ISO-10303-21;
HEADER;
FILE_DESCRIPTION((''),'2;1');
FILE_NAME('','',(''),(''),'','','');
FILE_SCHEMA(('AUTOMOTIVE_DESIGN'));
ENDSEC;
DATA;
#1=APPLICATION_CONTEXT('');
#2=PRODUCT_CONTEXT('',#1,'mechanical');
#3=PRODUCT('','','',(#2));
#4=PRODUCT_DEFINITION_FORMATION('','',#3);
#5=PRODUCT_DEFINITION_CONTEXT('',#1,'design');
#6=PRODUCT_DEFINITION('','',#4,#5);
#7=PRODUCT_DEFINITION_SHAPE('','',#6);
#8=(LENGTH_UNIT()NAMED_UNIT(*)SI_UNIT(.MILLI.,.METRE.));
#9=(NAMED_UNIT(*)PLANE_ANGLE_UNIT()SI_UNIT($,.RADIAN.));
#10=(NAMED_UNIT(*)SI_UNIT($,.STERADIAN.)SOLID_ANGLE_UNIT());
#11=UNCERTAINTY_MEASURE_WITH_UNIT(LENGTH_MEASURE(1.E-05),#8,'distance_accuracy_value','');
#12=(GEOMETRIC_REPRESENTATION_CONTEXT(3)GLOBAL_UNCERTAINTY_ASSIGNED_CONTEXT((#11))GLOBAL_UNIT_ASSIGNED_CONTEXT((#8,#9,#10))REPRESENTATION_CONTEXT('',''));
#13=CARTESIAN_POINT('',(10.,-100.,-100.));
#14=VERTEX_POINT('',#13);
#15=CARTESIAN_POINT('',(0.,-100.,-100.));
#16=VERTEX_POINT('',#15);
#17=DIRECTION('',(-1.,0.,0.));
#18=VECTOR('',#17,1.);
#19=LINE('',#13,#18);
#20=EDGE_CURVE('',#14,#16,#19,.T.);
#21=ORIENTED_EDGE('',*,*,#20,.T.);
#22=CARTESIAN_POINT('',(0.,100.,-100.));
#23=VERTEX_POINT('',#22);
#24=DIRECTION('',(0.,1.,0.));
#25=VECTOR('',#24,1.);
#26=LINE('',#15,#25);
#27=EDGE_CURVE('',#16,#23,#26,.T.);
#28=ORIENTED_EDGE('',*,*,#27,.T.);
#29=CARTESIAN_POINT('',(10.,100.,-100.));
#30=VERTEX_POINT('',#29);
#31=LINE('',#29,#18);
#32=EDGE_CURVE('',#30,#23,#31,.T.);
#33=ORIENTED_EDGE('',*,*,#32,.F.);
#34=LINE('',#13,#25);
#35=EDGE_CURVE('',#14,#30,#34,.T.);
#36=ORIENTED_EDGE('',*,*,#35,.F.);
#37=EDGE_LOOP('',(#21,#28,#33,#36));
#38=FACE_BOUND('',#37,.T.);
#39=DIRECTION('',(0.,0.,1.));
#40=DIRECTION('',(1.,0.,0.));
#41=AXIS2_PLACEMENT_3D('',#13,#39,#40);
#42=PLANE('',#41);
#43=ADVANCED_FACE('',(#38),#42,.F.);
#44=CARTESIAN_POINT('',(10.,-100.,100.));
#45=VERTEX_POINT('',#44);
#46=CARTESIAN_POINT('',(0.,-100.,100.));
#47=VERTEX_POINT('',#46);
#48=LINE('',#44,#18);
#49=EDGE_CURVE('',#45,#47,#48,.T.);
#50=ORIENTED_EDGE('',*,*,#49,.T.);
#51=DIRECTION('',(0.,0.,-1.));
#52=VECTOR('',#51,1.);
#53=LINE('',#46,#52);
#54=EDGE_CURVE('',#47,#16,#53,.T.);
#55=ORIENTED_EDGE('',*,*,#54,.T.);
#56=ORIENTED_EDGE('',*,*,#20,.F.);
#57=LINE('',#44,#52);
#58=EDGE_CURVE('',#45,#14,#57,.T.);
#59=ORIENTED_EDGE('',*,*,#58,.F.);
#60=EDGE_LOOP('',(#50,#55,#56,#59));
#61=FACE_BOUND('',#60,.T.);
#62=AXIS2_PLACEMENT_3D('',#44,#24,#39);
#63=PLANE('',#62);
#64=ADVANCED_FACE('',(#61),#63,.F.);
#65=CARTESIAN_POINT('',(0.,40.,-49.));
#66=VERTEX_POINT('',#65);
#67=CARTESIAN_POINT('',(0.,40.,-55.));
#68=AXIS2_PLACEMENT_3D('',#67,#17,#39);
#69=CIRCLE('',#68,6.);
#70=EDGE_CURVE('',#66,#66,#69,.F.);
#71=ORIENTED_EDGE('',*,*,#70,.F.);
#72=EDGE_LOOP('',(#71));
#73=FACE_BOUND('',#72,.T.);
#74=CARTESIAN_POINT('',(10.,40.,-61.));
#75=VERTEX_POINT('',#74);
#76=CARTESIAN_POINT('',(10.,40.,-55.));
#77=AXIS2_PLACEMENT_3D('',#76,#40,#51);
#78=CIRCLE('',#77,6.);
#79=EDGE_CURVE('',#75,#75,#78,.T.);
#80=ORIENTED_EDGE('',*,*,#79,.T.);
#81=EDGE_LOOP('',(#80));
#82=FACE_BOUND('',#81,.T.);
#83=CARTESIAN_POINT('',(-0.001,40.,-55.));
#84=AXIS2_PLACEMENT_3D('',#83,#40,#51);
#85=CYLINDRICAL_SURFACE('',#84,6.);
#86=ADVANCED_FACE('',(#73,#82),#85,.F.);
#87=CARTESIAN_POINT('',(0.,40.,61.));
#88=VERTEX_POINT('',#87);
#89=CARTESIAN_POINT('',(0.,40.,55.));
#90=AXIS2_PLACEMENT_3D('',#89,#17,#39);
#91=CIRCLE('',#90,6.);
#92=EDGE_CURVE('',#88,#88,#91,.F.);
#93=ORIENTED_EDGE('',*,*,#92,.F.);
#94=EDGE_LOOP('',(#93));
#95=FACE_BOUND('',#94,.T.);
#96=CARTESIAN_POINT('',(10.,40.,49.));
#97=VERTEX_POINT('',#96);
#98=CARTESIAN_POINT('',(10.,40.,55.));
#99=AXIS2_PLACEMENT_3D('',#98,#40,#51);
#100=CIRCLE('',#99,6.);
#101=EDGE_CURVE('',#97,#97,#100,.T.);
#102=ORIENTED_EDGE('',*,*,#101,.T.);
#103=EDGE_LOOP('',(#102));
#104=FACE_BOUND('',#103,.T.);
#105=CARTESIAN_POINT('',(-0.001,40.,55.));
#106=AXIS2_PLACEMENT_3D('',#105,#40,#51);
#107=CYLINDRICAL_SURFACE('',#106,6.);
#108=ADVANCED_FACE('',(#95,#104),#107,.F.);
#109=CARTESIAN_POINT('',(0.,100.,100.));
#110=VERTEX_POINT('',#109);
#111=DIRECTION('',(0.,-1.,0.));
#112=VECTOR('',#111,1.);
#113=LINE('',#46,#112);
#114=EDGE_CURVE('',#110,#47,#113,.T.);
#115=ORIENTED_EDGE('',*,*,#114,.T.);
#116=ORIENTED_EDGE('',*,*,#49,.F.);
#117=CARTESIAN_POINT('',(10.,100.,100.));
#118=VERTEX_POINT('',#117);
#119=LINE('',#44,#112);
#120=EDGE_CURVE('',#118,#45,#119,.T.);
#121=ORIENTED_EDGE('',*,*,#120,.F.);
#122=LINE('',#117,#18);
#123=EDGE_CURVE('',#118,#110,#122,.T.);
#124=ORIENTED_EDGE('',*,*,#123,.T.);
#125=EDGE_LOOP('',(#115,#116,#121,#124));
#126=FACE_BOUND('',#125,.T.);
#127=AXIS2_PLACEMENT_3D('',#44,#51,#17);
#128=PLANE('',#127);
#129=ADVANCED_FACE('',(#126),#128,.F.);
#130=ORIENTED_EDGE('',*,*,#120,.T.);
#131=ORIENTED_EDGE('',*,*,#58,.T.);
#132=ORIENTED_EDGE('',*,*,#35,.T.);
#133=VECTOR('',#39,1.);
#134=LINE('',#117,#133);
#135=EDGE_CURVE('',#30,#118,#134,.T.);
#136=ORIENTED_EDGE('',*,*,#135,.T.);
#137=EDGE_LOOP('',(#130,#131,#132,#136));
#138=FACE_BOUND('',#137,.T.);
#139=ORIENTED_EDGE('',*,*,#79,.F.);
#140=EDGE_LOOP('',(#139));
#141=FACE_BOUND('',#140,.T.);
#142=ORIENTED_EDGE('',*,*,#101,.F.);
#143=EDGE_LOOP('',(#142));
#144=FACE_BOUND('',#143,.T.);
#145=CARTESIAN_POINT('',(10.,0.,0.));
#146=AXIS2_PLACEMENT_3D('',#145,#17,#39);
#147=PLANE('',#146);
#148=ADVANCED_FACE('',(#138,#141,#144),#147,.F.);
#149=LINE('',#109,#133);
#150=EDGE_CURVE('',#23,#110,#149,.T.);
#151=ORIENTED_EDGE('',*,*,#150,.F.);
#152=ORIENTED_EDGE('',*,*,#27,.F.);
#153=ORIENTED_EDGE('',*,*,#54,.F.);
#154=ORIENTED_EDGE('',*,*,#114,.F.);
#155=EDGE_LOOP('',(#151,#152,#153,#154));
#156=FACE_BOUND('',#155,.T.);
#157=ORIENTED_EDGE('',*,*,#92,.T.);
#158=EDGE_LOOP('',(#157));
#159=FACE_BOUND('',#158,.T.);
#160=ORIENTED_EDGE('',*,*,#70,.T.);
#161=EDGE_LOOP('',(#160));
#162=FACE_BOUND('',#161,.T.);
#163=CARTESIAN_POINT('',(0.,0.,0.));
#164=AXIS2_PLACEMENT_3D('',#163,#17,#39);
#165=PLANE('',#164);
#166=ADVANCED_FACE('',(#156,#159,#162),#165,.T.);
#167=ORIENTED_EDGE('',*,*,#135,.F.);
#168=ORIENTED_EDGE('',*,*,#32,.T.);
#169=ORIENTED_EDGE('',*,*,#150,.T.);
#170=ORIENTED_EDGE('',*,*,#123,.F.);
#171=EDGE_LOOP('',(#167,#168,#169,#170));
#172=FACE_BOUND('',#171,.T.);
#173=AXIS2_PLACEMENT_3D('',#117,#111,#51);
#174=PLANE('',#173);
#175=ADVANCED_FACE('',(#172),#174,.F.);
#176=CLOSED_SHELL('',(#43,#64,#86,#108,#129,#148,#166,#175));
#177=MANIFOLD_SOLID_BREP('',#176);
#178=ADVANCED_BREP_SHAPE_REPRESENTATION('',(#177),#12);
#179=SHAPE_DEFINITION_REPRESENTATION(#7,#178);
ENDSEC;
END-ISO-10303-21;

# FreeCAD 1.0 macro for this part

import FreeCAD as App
import Part
import Sketcher
from FreeCAD import Vector


def add_polygon(sketch, points):
    """Adds a closed chain of lines whose ends are joined by coincident constraints."""
    first, n = sketch.GeometryCount, len(points)
    for a, b in zip(points, points[1:] + points[:1]):
        sketch.addGeometry(Part.LineSegment(App.Vector(*a, 0), App.Vector(*b, 0)), False)
    for i in range(n):
        sketch.addConstraint(Sketcher.Constraint("Coincident", first + i, 2, first + (i + 1) % n, 1))

doc = App.newDocument("Part")
body = doc.addObject("PartDesign::Body", "Body")

# Sketch on YZ plane
sketch1 = body.newObject("Sketcher::SketchObject", "Sketch")
sketch1.AttachmentSupport = (doc.getObject("YZ_Plane"), [""])
sketch1.MapMode = "FlatFace"
add_polygon(sketch1, [(100, 100), (-100, 100), (-100, -100), (100, -100)])  # lines 0-3
sketch1.addConstraint([
    Sketcher.Constraint("Horizontal", 0),
    Sketcher.Constraint("Vertical", 1),
    Sketcher.Constraint("Horizontal", 2),
    Sketcher.Constraint("Vertical", 3),
    Sketcher.Constraint("Symmetric", 0, 2, 2, 2, -1, 1),
    Sketcher.Constraint("Equal", 2, 1),
    Sketcher.Constraint("DistanceX", 0, 2, 0, 1, 200.0),
])
pad1 = body.newObject("PartDesign::Pad", "Pad")
pad1.Profile = sketch1
pad1.Length = 10

# Sketch on YZ plane
sketch2 = body.newObject("Sketcher::SketchObject", "Sketch001")
sketch2.AttachmentSupport = (doc.getObject("YZ_Plane"), [""])
sketch2.MapMode = "FlatFace"
sketch2.AttachmentOffset = App.Placement(Vector(0, 0, 10), App.Rotation())
sketch2.addGeometry(Part.Circle(Vector(40, 55, 0), Vector(0, 0, 1), 6), False)
sketch2.addConstraint([
    Sketcher.Constraint("Diameter", 0, 12.0),
    Sketcher.Constraint("DistanceX", -1, 1, 0, 3, 40.0),
    Sketcher.Constraint("DistanceY", -1, 1, 0, 3, 55.0),
])
pocket1 = body.newObject("PartDesign::Pocket", "Pocket")
pocket1.Profile = sketch2
pocket1.Type = "UpToFirst"

# Sketch on YZ plane
sketch3 = body.newObject("Sketcher::SketchObject", "Sketch002")
sketch3.AttachmentSupport = (doc.getObject("YZ_Plane"), [""])
sketch3.MapMode = "FlatFace"
sketch3.AttachmentOffset = App.Placement(Vector(0, 0, 10), App.Rotation())
sketch3.addGeometry(Part.Circle(Vector(40, -55, 0), Vector(0, 0, 1), 6), False)
sketch3.addConstraint([
    Sketcher.Constraint("Diameter", 0, 12.0),
    Sketcher.Constraint("DistanceX", -1, 1, 0, 3, 40.0),
    Sketcher.Constraint("DistanceY", 0, 3, -1, 1, 55.0),
])
pocket2 = body.newObject("PartDesign::Pocket", "Pocket001")
pocket2.Profile = sketch3
pocket2.Type = "UpToFirst"

doc.recompute()
